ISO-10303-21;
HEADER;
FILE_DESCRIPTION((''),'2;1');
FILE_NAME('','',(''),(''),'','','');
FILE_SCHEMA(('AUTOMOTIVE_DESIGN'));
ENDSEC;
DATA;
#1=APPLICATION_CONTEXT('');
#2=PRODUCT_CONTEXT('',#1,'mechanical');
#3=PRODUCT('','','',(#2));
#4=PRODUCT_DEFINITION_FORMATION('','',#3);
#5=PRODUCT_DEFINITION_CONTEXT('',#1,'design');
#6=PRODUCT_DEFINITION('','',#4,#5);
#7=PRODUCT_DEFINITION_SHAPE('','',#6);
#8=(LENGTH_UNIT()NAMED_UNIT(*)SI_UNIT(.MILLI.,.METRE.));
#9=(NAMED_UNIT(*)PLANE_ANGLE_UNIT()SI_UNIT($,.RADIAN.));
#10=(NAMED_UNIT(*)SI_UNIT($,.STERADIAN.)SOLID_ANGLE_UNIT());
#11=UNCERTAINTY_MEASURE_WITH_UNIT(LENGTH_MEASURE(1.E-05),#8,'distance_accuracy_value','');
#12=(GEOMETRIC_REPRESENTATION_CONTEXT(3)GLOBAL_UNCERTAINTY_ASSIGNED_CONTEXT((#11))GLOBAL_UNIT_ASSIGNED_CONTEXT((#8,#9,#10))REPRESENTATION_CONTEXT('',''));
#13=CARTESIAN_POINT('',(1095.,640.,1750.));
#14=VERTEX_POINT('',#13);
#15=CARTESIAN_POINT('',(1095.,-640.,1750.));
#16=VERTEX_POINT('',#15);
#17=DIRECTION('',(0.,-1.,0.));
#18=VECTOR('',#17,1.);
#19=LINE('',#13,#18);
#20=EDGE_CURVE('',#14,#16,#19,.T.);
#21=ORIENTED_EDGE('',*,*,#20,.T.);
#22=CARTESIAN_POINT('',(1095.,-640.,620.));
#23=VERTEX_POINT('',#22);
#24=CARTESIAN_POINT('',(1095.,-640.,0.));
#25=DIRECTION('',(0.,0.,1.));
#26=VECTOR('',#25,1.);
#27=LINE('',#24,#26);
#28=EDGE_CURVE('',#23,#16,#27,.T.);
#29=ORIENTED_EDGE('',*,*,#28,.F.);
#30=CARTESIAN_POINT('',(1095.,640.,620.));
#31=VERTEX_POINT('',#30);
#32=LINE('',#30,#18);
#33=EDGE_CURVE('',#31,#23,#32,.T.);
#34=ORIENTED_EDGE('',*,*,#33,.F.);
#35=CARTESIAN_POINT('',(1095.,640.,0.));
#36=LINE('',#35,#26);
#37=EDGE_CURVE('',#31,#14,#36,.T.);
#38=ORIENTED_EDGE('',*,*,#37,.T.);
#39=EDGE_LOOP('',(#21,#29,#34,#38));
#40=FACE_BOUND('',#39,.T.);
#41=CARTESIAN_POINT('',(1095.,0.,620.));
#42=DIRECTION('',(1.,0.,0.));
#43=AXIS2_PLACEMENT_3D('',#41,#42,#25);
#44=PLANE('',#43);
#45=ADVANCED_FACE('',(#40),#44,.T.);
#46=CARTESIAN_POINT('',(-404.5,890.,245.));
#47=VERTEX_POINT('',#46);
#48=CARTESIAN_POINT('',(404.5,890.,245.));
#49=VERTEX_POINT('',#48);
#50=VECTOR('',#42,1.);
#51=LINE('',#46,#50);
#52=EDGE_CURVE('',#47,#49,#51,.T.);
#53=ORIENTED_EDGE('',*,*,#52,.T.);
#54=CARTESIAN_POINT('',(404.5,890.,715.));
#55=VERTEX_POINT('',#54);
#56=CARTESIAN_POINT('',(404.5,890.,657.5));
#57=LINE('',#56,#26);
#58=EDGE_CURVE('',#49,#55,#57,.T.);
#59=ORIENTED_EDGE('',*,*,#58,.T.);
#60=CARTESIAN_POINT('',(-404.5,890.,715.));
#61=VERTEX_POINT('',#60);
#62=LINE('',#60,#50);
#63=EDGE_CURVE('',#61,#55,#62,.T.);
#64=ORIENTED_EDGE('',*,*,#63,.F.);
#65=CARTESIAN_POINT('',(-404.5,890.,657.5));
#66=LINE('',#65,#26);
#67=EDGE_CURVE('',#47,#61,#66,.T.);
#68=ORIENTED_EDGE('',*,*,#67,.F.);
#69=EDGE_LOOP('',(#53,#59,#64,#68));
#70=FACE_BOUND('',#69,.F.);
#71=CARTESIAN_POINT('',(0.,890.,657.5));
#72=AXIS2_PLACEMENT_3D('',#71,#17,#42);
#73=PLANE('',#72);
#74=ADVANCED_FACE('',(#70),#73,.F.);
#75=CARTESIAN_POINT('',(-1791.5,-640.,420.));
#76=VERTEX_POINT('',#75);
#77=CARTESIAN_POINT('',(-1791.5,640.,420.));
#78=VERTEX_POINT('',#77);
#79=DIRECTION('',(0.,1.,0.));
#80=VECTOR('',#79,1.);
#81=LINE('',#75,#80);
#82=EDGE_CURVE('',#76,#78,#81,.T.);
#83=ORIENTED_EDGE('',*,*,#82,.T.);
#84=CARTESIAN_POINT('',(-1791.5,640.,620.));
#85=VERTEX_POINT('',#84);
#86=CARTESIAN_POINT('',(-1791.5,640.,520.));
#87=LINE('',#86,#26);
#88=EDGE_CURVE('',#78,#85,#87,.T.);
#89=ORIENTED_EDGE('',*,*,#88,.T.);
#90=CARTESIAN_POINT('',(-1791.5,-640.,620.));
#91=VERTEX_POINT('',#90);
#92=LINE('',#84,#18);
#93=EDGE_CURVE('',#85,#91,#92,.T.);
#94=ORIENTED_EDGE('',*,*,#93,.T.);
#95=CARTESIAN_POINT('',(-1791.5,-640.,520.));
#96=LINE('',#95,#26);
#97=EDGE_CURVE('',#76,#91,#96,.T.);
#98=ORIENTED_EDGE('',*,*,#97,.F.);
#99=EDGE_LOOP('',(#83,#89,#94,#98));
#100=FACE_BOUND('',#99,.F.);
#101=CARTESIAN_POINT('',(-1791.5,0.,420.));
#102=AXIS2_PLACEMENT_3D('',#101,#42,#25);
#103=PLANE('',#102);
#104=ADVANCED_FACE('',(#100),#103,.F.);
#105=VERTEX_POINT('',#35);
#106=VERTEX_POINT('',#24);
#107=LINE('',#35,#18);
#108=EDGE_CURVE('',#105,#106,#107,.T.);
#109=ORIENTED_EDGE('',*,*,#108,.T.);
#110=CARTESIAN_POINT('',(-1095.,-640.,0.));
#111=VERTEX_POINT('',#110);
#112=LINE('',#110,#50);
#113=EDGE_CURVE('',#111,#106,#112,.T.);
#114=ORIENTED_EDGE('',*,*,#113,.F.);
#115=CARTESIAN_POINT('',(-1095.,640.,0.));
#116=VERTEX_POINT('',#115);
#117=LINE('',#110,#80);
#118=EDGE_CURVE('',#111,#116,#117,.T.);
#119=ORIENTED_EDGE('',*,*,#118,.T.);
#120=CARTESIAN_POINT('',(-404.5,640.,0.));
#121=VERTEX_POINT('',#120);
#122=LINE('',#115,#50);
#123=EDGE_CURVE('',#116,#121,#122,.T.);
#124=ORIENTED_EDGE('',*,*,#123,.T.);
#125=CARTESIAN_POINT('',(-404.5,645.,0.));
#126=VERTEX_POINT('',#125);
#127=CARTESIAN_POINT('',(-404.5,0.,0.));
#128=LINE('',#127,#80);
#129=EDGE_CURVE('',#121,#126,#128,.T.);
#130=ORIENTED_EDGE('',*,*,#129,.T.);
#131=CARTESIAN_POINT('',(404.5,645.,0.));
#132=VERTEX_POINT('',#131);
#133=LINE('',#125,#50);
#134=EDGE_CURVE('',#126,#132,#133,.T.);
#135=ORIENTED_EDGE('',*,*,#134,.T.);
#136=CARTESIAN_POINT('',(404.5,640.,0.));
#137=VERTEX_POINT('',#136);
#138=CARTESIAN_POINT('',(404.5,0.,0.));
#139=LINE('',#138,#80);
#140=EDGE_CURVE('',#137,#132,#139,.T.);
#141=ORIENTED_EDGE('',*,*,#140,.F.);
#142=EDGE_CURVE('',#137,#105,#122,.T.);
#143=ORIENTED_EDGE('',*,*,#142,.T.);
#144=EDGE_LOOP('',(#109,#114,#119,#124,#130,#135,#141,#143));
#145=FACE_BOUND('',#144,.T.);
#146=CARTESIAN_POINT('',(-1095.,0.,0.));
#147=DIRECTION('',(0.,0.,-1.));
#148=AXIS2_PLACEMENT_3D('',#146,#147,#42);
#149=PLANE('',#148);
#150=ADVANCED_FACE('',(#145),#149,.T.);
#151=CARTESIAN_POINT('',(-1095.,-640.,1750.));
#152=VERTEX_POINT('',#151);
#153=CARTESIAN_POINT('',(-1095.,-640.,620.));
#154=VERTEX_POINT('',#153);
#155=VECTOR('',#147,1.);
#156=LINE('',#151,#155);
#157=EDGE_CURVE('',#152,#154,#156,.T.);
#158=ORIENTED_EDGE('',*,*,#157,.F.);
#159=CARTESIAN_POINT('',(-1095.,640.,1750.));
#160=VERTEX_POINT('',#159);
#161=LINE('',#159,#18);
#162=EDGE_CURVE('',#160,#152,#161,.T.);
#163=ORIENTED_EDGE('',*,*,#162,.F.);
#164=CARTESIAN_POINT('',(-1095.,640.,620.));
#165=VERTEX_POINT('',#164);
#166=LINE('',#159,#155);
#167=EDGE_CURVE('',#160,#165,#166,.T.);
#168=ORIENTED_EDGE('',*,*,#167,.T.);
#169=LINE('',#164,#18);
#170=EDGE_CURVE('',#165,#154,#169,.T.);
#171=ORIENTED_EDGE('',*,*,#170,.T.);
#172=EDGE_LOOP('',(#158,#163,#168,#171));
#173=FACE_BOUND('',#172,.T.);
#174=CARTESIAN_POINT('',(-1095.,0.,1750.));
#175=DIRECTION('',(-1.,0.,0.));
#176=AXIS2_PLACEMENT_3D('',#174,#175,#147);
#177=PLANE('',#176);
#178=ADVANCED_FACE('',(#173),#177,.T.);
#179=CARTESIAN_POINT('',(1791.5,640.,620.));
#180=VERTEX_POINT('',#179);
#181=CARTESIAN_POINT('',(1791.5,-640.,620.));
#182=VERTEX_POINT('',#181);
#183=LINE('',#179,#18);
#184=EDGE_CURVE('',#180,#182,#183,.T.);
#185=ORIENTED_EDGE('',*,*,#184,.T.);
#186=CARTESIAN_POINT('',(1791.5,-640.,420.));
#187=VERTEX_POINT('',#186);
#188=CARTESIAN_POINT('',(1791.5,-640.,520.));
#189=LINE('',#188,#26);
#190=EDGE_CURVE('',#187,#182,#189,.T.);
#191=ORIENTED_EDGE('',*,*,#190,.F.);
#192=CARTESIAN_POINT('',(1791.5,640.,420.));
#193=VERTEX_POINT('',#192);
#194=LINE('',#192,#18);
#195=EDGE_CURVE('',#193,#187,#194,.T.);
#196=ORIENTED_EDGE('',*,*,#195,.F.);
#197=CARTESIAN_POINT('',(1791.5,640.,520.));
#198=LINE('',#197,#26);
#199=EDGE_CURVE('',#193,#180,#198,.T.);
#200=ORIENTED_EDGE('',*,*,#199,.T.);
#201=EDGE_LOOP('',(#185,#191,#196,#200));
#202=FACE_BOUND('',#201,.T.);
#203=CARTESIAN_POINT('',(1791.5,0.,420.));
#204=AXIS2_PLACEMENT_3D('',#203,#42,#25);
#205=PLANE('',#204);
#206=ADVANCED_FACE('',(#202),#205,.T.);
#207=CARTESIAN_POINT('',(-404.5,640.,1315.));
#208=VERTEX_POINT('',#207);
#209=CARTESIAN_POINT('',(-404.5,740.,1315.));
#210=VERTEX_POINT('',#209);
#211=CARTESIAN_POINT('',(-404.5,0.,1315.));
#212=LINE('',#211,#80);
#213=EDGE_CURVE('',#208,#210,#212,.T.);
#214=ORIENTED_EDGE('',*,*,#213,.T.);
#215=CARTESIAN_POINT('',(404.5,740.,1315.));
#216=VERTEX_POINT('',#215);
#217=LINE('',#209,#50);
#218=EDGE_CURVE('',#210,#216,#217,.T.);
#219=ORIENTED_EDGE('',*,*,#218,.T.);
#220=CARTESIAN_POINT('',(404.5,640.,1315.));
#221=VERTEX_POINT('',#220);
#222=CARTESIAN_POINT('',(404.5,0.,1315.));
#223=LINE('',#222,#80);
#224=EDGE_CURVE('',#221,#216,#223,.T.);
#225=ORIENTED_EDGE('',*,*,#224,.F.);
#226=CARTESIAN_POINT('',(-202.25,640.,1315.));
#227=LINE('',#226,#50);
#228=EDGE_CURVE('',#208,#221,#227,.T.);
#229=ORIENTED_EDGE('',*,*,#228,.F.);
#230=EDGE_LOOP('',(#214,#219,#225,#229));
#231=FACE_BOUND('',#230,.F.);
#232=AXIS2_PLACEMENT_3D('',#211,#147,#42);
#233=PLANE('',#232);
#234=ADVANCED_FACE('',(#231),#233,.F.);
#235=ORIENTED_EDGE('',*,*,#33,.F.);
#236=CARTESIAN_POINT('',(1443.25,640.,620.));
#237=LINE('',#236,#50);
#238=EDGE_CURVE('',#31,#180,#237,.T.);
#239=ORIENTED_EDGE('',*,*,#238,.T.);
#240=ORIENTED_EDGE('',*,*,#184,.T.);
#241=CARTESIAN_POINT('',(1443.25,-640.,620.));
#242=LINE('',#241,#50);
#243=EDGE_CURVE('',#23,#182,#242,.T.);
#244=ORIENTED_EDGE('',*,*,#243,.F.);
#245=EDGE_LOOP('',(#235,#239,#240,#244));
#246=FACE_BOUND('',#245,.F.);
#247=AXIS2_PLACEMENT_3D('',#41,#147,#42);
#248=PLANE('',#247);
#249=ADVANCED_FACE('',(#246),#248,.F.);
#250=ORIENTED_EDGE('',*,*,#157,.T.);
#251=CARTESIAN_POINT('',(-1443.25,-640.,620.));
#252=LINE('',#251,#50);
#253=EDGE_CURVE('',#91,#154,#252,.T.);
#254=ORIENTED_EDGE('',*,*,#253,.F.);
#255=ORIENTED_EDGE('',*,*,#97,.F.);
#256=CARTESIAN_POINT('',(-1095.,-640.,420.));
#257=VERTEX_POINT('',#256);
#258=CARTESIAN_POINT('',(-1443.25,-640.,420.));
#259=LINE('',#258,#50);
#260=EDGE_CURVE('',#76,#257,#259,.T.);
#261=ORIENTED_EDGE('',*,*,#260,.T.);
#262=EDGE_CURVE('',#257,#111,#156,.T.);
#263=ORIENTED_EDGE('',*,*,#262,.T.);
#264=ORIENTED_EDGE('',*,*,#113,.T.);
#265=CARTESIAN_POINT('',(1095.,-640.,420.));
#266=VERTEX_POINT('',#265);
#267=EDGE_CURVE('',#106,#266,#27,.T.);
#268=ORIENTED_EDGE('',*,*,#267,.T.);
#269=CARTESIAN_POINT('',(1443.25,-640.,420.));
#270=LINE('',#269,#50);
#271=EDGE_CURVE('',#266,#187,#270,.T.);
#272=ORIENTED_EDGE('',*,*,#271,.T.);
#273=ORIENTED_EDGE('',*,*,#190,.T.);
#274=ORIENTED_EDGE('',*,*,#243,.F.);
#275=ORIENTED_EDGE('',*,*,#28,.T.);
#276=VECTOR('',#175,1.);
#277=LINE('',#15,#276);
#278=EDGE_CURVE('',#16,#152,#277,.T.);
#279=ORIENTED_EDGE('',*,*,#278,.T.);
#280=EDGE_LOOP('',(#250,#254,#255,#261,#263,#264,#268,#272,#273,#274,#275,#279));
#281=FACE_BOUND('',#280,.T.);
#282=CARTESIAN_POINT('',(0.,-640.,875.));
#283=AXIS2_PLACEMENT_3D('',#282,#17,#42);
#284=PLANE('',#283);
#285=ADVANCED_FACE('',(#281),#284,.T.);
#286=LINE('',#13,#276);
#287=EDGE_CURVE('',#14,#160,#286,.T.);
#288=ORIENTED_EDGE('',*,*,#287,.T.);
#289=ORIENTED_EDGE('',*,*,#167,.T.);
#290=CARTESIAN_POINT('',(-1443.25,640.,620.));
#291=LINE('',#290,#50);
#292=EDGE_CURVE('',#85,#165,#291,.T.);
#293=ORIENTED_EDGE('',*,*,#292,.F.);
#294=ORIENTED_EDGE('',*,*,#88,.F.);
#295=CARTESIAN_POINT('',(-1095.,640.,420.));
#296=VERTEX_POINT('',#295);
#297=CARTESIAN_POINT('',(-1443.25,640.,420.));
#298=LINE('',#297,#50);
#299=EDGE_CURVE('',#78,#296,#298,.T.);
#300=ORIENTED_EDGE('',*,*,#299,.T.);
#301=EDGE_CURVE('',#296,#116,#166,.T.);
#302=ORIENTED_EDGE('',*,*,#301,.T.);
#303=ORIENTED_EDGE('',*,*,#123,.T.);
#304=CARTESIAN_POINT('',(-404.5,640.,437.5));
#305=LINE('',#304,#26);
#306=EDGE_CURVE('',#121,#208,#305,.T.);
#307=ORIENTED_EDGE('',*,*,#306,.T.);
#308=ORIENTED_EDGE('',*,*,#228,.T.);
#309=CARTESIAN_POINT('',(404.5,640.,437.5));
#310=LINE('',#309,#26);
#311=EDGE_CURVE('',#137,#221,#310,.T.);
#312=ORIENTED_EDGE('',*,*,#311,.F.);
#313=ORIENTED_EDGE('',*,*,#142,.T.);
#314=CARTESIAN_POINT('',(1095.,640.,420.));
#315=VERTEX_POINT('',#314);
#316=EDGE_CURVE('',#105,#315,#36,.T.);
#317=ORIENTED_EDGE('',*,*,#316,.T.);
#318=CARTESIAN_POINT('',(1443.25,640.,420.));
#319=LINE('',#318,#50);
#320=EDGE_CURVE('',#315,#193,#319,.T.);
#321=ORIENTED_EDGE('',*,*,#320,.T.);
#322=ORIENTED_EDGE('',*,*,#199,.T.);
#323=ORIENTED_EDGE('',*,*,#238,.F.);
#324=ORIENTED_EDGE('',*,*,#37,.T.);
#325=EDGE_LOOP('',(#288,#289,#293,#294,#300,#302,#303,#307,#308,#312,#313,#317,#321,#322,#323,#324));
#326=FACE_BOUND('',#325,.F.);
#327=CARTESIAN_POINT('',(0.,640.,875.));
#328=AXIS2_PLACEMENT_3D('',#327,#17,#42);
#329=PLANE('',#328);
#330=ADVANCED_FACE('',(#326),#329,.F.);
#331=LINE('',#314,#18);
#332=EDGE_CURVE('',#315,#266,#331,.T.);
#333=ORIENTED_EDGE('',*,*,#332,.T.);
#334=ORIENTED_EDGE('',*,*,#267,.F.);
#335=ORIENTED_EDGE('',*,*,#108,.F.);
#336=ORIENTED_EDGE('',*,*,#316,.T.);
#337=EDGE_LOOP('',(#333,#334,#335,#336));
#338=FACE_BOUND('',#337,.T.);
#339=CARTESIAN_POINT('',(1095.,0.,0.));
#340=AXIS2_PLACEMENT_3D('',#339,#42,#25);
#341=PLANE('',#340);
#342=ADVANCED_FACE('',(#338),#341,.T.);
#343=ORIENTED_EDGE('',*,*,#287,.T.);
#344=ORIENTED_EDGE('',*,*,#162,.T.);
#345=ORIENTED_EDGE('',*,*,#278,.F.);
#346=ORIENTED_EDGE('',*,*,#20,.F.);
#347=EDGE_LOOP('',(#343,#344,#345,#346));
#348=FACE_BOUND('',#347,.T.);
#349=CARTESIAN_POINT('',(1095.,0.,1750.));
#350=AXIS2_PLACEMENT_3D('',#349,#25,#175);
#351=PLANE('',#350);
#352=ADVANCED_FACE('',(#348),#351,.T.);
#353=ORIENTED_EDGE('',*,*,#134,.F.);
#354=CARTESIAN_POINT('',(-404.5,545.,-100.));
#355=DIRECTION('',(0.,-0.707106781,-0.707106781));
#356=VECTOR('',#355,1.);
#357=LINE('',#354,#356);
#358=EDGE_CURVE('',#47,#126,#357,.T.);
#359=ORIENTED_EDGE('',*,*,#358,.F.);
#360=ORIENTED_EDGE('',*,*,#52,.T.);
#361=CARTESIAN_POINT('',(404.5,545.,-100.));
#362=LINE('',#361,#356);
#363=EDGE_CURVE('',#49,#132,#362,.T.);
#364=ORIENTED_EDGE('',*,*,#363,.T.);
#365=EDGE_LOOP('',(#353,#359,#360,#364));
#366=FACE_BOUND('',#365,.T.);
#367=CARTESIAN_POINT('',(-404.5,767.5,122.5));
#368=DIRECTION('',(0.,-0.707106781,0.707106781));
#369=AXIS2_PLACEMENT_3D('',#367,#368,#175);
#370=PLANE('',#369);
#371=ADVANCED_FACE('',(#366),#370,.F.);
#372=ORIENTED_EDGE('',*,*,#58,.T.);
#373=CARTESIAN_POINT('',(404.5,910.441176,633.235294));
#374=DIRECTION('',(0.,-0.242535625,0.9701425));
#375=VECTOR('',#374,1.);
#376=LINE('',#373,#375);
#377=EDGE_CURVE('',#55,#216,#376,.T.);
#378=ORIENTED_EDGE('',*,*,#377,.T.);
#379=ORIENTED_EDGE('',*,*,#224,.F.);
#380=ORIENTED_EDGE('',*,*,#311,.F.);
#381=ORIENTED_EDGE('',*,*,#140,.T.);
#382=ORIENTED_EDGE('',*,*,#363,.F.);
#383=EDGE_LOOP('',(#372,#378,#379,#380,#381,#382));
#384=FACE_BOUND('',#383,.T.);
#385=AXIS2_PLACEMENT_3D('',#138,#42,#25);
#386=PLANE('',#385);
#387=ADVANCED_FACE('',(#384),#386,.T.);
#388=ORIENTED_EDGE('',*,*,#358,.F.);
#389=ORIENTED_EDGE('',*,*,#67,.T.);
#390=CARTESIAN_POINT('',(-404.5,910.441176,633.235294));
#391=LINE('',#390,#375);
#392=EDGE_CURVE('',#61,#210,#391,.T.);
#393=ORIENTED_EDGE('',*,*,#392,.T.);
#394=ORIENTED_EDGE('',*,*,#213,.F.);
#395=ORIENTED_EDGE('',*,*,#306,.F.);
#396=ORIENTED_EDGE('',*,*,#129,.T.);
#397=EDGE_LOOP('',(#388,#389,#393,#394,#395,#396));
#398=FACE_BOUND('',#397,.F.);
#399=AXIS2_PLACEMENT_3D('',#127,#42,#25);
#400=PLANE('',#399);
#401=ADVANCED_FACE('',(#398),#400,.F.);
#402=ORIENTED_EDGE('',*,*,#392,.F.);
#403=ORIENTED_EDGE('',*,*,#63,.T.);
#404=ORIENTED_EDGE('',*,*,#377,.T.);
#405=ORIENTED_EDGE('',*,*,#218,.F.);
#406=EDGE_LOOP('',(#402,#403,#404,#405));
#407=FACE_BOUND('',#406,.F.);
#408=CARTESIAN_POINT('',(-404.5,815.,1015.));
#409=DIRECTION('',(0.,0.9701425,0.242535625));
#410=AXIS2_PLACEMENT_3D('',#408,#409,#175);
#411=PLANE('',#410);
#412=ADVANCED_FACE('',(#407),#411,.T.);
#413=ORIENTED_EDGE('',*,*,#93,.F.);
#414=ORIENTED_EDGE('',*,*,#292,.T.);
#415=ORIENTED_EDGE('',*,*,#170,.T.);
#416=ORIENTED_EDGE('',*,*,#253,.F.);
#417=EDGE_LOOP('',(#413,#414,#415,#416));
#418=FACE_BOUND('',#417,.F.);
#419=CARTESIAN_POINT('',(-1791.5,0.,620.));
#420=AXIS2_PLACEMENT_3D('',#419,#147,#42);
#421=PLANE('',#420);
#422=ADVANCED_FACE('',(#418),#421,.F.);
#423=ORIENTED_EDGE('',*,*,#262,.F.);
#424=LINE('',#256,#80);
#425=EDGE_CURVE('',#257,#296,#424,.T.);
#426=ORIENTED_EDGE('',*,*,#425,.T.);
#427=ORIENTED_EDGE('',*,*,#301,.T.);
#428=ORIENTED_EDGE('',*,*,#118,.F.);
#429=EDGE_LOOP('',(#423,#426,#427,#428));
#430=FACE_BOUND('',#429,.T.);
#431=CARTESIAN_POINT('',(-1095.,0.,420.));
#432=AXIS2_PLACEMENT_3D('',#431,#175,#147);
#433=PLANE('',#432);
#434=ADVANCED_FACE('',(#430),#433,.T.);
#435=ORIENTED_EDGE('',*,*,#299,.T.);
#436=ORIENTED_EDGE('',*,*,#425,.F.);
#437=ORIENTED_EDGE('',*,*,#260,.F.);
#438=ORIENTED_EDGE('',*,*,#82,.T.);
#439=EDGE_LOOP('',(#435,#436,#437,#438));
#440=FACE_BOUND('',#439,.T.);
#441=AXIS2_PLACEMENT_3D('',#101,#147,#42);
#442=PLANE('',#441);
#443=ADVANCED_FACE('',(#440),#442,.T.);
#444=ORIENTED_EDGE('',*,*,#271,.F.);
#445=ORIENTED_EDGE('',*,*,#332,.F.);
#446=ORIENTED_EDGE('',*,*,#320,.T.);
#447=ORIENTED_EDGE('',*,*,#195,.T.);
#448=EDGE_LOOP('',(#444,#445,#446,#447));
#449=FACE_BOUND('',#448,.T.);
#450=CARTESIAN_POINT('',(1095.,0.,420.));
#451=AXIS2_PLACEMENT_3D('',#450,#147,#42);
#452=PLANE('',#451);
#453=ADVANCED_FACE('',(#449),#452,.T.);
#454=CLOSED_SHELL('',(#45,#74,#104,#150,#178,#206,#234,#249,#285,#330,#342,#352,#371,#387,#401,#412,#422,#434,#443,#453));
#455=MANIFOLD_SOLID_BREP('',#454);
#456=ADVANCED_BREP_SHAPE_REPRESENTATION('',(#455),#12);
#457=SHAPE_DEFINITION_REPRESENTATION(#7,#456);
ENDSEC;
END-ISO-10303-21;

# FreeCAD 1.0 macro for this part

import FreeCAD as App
import Part
import Sketcher
from FreeCAD import Vector
Q = App.Units.Quantity


def edges_at(feature, points):
    """Names of the edges that pass closest to the given points."""
    edges = feature.Shape.Edges
    near = lambda p: min(range(len(edges)), key=lambda i: edges[i].distToShape(Part.Vertex(*p))[0])
    return sorted({f"Edge{near(p) + 1}" for p in points})

doc = App.newDocument("Part")
body = doc.addObject("PartDesign::Body", "Body")

sketch1 = doc.addObject("Sketcher::SketchObject", "Sketch")
body.addObject(sketch1)
sketch1.AttachmentSupport = (doc.XZ_Plane, [""])
sketch1.MapMode = "FlatFace"
sketch1.addGeometry([
    Part.LineSegment(Vector(-1095, 0, 0), Vector(1095, 0, 0)),
    Part.LineSegment(Vector(1095, 0, 0), Vector(1095, 420, 0)),
    Part.LineSegment(Vector(1095, 420, 0), Vector(1792, 420, 0)),
    Part.LineSegment(Vector(1792, 420, 0), Vector(1792, 620, 0)),
    Part.LineSegment(Vector(1792, 620, 0), Vector(1095, 620, 0)),
    Part.LineSegment(Vector(1095, 620, 0), Vector(1095, 1750, 0)),
    Part.LineSegment(Vector(1095, 1750, 0), Vector(-1095, 1750, 0)),
    Part.LineSegment(Vector(-1095, 1750, 0), Vector(-1095, 620, 0)),
    Part.LineSegment(Vector(-1095, 620, 0), Vector(-1792, 620, 0)),
    Part.LineSegment(Vector(-1792, 620, 0), Vector(-1792, 420, 0)),
    Part.LineSegment(Vector(-1792, 420, 0), Vector(-1095, 420, 0)),
    Part.LineSegment(Vector(-1095, 420, 0), Vector(-1095, 0, 0)),
], False)
sketch1.addConstraint([
    Sketcher.Constraint("Coincident", 0, 2, 1, 1),
    Sketcher.Constraint("Coincident", 1, 2, 2, 1),
    Sketcher.Constraint("Coincident", 2, 2, 3, 1),
    Sketcher.Constraint("Coincident", 3, 2, 4, 1),
    Sketcher.Constraint("Coincident", 4, 2, 5, 1),
    Sketcher.Constraint("Coincident", 5, 2, 6, 1),
    Sketcher.Constraint("Coincident", 6, 2, 7, 1),
    Sketcher.Constraint("Coincident", 7, 2, 8, 1),
    Sketcher.Constraint("Coincident", 8, 2, 9, 1),
    Sketcher.Constraint("Coincident", 9, 2, 10, 1),
    Sketcher.Constraint("Coincident", 10, 2, 11, 1),
    Sketcher.Constraint("Coincident", 11, 2, 0, 1),
    Sketcher.Constraint("Horizontal", 0),
    Sketcher.Constraint("Vertical", 1),
    Sketcher.Constraint("Horizontal", 2),
    Sketcher.Constraint("Vertical", 3),
    Sketcher.Constraint("Horizontal", 4),
    Sketcher.Constraint("Vertical", 5),
    Sketcher.Constraint("Horizontal", 6),
    Sketcher.Constraint("Vertical", 7),
    Sketcher.Constraint("Horizontal", 8),
    Sketcher.Constraint("Vertical", 9),
    Sketcher.Constraint("Horizontal", 10),
    Sketcher.Constraint("Vertical", 11),
    Sketcher.Constraint("Symmetric", 0, 2, 11, 2, -1, 1),
    Sketcher.Constraint("Symmetric", 4, 2, 7, 2, -2),
    Sketcher.Constraint("Symmetric", 2, 2, 9, 2, -2),
    Sketcher.Constraint("Vertical", 1, 2, 4, 2),
    Sketcher.Constraint("DistanceX", 0, 1, 0, 2, Q("2190 mm")),
    Sketcher.Constraint("DistanceY", 1, 1, 1, 2, Q("420 mm")),
    Sketcher.Constraint("DistanceY", 3, 1, 3, 2, Q("200 mm")),
    Sketcher.Constraint("DistanceY", 5, 1, 5, 2, Q("1130 mm")),
    Sketcher.Constraint("DistanceX", 2, 1, 2, 2, Q("696.5 mm")),
])
pad1 = doc.addObject("PartDesign::Pad", "Pad")
body.addObject(pad1)
pad1.Profile = sketch1
pad1.Length = 1280
pad1.Midplane = True

sketch2 = doc.addObject("Sketcher::SketchObject", "Sketch001")
body.addObject(sketch2)
sketch2.AttachmentSupport = (doc.XZ_Plane, [""])
sketch2.MapMode = "FlatFace"
sketch2.addGeometry([
    Part.LineSegment(Vector(-404, 1315, 0), Vector(-404, 0, 0)),
    Part.LineSegment(Vector(-404, 0, 0), Vector(404, 0, 0)),
    Part.LineSegment(Vector(404, 0, 0), Vector(404, 1315, 0)),
    Part.LineSegment(Vector(404, 1315, 0), Vector(-404, 1315, 0)),
], False)
sketch2.addConstraint([
    Sketcher.Constraint("Coincident", 0, 2, 1, 1),
    Sketcher.Constraint("Coincident", 1, 2, 2, 1),
    Sketcher.Constraint("Coincident", 2, 2, 3, 1),
    Sketcher.Constraint("Coincident", 3, 2, 0, 1),
    Sketcher.Constraint("Vertical", 0),
    Sketcher.Constraint("Horizontal", 1),
    Sketcher.Constraint("Vertical", 2),
    Sketcher.Constraint("Horizontal", 3),
    Sketcher.Constraint("Symmetric", 0, 2, 1, 2, -1, 1),
    Sketcher.Constraint("DistanceX", 1, 1, 1, 2, Q("809 mm")),
    Sketcher.Constraint("DistanceY", 0, 2, 0, 1, Q("1315 mm")),
])
pad2 = doc.addObject("PartDesign::Pad", "Pad001")
body.addObject(pad2)
pad2.Profile = sketch2
pad2.Length = 890
pad2.Reversed = True
doc.recompute()

chamfer = doc.addObject("PartDesign::Chamfer", "Chamfer")
body.addObject(chamfer)
chamfer.Base = (pad2, edges_at(pad2, [(0, 890, 1315)]))
chamfer.ChamferType = "Two distances"
chamfer.Size = 600
chamfer.Size2 = 150
chamfer.FlipDirection = True
doc.recompute()

chamfer2 = doc.addObject("PartDesign::Chamfer", "Chamfer001")
body.addObject(chamfer2)
chamfer2.Base = (chamfer, edges_at(chamfer, [(0, 890, 0)]))
chamfer2.Size = 245

doc.recompute()
